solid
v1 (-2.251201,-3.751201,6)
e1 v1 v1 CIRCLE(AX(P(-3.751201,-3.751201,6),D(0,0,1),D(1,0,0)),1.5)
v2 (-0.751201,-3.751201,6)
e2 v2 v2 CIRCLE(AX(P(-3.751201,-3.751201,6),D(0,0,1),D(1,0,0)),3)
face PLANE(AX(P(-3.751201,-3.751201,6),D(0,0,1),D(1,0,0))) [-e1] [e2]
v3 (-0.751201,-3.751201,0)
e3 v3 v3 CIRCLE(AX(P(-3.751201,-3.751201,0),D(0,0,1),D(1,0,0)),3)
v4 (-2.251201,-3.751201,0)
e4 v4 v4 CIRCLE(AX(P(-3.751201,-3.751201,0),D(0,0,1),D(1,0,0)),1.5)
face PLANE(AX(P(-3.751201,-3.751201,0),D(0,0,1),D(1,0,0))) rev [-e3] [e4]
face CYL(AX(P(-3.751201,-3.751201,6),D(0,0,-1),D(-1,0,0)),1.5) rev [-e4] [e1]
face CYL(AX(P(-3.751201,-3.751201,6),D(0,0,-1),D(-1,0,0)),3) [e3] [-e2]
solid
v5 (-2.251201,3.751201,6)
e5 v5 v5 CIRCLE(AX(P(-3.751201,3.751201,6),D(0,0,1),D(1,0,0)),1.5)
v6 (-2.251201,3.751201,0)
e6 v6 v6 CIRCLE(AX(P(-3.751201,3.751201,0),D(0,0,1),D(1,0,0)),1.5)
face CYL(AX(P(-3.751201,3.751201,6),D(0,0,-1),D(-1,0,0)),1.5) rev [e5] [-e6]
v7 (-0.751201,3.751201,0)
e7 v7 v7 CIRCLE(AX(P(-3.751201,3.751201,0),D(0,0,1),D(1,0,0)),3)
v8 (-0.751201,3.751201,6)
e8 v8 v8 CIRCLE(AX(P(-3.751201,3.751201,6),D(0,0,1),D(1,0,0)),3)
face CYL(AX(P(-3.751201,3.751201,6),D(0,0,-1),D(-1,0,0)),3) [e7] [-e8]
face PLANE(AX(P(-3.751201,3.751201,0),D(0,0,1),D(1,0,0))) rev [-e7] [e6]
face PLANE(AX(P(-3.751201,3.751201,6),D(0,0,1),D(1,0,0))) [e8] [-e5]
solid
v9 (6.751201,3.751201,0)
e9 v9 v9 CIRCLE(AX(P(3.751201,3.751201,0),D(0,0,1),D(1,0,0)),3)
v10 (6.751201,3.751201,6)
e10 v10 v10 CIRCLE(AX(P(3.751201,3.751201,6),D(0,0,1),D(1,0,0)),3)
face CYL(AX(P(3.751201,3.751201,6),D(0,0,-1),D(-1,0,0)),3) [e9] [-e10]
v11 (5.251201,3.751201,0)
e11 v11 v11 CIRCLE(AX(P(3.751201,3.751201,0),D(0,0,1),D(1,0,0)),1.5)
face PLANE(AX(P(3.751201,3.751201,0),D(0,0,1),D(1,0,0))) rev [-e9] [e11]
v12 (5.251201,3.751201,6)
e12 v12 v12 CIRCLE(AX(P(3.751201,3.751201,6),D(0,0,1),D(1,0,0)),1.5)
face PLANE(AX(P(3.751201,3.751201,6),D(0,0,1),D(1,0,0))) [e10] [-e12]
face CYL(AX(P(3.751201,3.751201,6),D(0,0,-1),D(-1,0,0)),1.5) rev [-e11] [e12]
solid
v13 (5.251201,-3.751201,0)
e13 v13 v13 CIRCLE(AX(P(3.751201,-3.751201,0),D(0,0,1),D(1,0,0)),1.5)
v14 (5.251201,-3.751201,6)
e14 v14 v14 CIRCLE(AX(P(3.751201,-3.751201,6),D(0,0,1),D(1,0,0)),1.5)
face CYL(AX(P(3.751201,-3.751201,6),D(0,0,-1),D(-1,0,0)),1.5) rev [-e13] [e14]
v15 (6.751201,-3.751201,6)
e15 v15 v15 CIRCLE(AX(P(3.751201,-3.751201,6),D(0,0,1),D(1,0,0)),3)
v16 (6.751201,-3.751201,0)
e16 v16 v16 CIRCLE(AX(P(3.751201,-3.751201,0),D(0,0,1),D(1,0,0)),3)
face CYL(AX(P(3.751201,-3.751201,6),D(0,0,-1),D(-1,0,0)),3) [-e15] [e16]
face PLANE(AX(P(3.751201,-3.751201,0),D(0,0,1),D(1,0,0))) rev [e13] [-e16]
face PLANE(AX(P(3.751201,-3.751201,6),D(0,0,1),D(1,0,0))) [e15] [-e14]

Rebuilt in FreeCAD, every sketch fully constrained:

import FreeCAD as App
import Part
import Sketcher
from FreeCAD import Vector

doc = App.newDocument("Part")
body = doc.addObject("PartDesign::Body", "Body")

# Sketch on XY plane
sketch1 = body.newObject("Sketcher::SketchObject", "Sketch")
sketch1.AttachmentSupport = (doc.getObject("XY_Plane"), [""])
sketch1.MapMode = "FlatFace"
sketch1.addGeometry([
    Part.Circle(Vector(-3.8, 3.8, 0), Vector(0, 0, 1), 3),
    Part.Circle(Vector(-3.8, 3.8, 0), Vector(0, 0, 1), 1.5),
], False)
sketch1.addConstraint([
    Sketcher.Constraint("Coincident", 1, 3, 0, 3),
    Sketcher.Constraint("Diameter", 0, 6.0),
    Sketcher.Constraint("Diameter", 1, 3.0),
    Sketcher.Constraint("DistanceX", 0, 3, -1, 1, 3.751201),
    Sketcher.Constraint("DistanceY", -1, 1, 0, 3, 3.751201),
])
pad1 = body.newObject("PartDesign::Pad", "Pad")
pad1.Profile = sketch1
pad1.Length = 6
body2 = doc.addObject("PartDesign::Body", "Body001")

# Sketch on XY plane
sketch2 = body2.newObject("Sketcher::SketchObject", "Sketch001")
sketch2.AttachmentSupport = (doc.getObject("XY_Plane001"), [""])
sketch2.MapMode = "FlatFace"
sketch2.addGeometry([
    Part.Circle(Vector(3.8, 3.8, 0), Vector(0, 0, 1), 3),
    Part.Circle(Vector(3.8, 3.8, 0), Vector(0, 0, 1), 1.5),
], False)
sketch2.addConstraint([
    Sketcher.Constraint("Coincident", 1, 3, 0, 3),
    Sketcher.Constraint("Diameter", 0, 6.0),
    Sketcher.Constraint("Diameter", 1, 3.0),
    Sketcher.Constraint("DistanceX", -1, 1, 0, 3, 3.751201),
    Sketcher.Constraint("DistanceY", -1, 1, 0, 3, 3.751201),
])
pad2 = body2.newObject("PartDesign::Pad", "Pad001")
pad2.Profile = sketch2
pad2.Length = 6
body3 = doc.addObject("PartDesign::Body", "Body002")

# Sketch on XY plane
sketch3 = body3.newObject("Sketcher::SketchObject", "Sketch002")
sketch3.AttachmentSupport = (doc.getObject("XY_Plane002"), [""])
sketch3.MapMode = "FlatFace"
sketch3.addGeometry([
    Part.Circle(Vector(3.8, -3.8, 0), Vector(0, 0, 1), 3),
    Part.Circle(Vector(3.8, -3.8, 0), Vector(0, 0, 1), 1.5),
], False)
sketch3.addConstraint([
    Sketcher.Constraint("Coincident", 1, 3, 0, 3),
    Sketcher.Constraint("Diameter", 0, 6.0),
    Sketcher.Constraint("Diameter", 1, 3.0),
    Sketcher.Constraint("DistanceX", -1, 1, 0, 3, 3.751201),
    Sketcher.Constraint("DistanceY", 0, 3, -1, 1, 3.751201),
])
pad3 = body3.newObject("PartDesign::Pad", "Pad002")
pad3.Profile = sketch3
pad3.Length = 6
body4 = doc.addObject("PartDesign::Body", "Body003")

# Sketch on XY plane
sketch4 = body4.newObject("Sketcher::SketchObject", "Sketch003")
sketch4.AttachmentSupport = (doc.getObject("XY_Plane003"), [""])
sketch4.MapMode = "FlatFace"
sketch4.addGeometry([
    Part.Circle(Vector(-3.8, -3.8, 0), Vector(0, 0, 1), 3),
    Part.Circle(Vector(-3.8, -3.8, 0), Vector(0, 0, 1), 1.5),
], False)
sketch4.addConstraint([
    Sketcher.Constraint("Coincident", 1, 3, 0, 3),
    Sketcher.Constraint("Diameter", 0, 6.0),
    Sketcher.Constraint("Diameter", 1, 3.0),
    Sketcher.Constraint("DistanceX", 0, 3, -1, 1, 3.751201),
    Sketcher.Constraint("DistanceY", 0, 3, -1, 1, 3.751201),
])
pad4 = body4.newObject("PartDesign::Pad", "Pad003")
pad4.Profile = sketch4
pad4.Length = 6

doc.recompute()
